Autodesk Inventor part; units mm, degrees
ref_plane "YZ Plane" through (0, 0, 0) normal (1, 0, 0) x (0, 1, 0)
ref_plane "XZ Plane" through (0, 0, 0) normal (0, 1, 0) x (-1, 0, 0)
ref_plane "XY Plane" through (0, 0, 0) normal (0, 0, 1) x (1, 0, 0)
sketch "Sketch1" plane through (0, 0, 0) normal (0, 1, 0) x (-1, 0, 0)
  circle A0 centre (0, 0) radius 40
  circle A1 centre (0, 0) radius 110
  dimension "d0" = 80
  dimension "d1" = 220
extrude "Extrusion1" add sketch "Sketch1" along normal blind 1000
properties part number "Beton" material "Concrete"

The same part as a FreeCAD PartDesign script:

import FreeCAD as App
import Part
import Sketcher
Q = App.Units.Quantity

doc = App.newDocument("Part")
body = doc.addObject("PartDesign::Body", "Body")

# Sketch on XZ plane
sketch1 = doc.addObject("Sketcher::SketchObject", "Sketch")
body.addObject(sketch1)
sketch1.AttachmentSupport = (doc.XZ_Plane, [""])
sketch1.MapMode = "FlatFace"
sketch1.addGeometry([
    Part.Circle(App.Vector(0, 0, 0), App.Vector(0, 0, 1), 110),
    Part.Circle(App.Vector(0, 0, 0), App.Vector(0, 0, 1), 40),
], False)
sketch1.addConstraint([
    Sketcher.Constraint("Coincident", 0, 3, -1, 1),
    Sketcher.Constraint("Coincident", 1, 3, -1, 1),
    Sketcher.Constraint("Diameter", 0, Q("220 mm")),
    Sketcher.Constraint("Diameter", 1, Q("80 mm")),
])
pad1 = doc.addObject("PartDesign::Pad", "Pad")
body.addObject(pad1)
pad1.Profile = sketch1
pad1.Length = 1000
pad1.Reversed = True

doc.recompute()
